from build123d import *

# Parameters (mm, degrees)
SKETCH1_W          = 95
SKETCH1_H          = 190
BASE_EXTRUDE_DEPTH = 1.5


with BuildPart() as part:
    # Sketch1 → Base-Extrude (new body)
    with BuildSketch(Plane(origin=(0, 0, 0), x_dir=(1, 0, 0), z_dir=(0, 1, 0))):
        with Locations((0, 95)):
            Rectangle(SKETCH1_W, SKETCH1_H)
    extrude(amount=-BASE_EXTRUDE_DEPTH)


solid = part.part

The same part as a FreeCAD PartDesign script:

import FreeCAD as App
import Part
import Sketcher
Q = App.Units.Quantity

doc = App.newDocument("Part")
body = doc.addObject("PartDesign::Body", "Body")

sketch1 = body.newObject("Sketcher::SketchObject", "Sketch")
sketch1.AttachmentSupport = (doc.getObject("XZ_Plane"), [""])
sketch1.MapMode = "FlatFace"
sketch1.addGeometry([
    Part.LineSegment(App.Vector(-48, -190, 0), App.Vector(-48, 0, 0)),
    Part.LineSegment(App.Vector(-48, 0, 0), App.Vector(48, 0, 0)),
    Part.LineSegment(App.Vector(48, 0, 0), App.Vector(48, -190, 0)),
    Part.LineSegment(App.Vector(48, -190, 0), App.Vector(-48, -190, 0)),
], False)
sketch1.addConstraint([
    Sketcher.Constraint("Coincident", 0, 2, 1, 1),
    Sketcher.Constraint("Coincident", 1, 2, 2, 1),
    Sketcher.Constraint("Coincident", 2, 2, 3, 1),
    Sketcher.Constraint("Coincident", 3, 2, 0, 1),
    Sketcher.Constraint("Vertical", 0),
    Sketcher.Constraint("Horizontal", 1),
    Sketcher.Constraint("Vertical", 2),
    Sketcher.Constraint("Horizontal", 3),
    Sketcher.Constraint("Symmetric", 0, 2, 1, 2, -1, 1),
    Sketcher.Constraint("DistanceX", 1, 1, 1, 2, Q("95 mm")),
    Sketcher.Constraint("DistanceY", 0, 1, 0, 2, Q("190 mm")),
])
pad1 = body.newObject("PartDesign::Pad", "Pad")
pad1.Profile = sketch1
pad1.Length = 1.5

doc.recompute()
